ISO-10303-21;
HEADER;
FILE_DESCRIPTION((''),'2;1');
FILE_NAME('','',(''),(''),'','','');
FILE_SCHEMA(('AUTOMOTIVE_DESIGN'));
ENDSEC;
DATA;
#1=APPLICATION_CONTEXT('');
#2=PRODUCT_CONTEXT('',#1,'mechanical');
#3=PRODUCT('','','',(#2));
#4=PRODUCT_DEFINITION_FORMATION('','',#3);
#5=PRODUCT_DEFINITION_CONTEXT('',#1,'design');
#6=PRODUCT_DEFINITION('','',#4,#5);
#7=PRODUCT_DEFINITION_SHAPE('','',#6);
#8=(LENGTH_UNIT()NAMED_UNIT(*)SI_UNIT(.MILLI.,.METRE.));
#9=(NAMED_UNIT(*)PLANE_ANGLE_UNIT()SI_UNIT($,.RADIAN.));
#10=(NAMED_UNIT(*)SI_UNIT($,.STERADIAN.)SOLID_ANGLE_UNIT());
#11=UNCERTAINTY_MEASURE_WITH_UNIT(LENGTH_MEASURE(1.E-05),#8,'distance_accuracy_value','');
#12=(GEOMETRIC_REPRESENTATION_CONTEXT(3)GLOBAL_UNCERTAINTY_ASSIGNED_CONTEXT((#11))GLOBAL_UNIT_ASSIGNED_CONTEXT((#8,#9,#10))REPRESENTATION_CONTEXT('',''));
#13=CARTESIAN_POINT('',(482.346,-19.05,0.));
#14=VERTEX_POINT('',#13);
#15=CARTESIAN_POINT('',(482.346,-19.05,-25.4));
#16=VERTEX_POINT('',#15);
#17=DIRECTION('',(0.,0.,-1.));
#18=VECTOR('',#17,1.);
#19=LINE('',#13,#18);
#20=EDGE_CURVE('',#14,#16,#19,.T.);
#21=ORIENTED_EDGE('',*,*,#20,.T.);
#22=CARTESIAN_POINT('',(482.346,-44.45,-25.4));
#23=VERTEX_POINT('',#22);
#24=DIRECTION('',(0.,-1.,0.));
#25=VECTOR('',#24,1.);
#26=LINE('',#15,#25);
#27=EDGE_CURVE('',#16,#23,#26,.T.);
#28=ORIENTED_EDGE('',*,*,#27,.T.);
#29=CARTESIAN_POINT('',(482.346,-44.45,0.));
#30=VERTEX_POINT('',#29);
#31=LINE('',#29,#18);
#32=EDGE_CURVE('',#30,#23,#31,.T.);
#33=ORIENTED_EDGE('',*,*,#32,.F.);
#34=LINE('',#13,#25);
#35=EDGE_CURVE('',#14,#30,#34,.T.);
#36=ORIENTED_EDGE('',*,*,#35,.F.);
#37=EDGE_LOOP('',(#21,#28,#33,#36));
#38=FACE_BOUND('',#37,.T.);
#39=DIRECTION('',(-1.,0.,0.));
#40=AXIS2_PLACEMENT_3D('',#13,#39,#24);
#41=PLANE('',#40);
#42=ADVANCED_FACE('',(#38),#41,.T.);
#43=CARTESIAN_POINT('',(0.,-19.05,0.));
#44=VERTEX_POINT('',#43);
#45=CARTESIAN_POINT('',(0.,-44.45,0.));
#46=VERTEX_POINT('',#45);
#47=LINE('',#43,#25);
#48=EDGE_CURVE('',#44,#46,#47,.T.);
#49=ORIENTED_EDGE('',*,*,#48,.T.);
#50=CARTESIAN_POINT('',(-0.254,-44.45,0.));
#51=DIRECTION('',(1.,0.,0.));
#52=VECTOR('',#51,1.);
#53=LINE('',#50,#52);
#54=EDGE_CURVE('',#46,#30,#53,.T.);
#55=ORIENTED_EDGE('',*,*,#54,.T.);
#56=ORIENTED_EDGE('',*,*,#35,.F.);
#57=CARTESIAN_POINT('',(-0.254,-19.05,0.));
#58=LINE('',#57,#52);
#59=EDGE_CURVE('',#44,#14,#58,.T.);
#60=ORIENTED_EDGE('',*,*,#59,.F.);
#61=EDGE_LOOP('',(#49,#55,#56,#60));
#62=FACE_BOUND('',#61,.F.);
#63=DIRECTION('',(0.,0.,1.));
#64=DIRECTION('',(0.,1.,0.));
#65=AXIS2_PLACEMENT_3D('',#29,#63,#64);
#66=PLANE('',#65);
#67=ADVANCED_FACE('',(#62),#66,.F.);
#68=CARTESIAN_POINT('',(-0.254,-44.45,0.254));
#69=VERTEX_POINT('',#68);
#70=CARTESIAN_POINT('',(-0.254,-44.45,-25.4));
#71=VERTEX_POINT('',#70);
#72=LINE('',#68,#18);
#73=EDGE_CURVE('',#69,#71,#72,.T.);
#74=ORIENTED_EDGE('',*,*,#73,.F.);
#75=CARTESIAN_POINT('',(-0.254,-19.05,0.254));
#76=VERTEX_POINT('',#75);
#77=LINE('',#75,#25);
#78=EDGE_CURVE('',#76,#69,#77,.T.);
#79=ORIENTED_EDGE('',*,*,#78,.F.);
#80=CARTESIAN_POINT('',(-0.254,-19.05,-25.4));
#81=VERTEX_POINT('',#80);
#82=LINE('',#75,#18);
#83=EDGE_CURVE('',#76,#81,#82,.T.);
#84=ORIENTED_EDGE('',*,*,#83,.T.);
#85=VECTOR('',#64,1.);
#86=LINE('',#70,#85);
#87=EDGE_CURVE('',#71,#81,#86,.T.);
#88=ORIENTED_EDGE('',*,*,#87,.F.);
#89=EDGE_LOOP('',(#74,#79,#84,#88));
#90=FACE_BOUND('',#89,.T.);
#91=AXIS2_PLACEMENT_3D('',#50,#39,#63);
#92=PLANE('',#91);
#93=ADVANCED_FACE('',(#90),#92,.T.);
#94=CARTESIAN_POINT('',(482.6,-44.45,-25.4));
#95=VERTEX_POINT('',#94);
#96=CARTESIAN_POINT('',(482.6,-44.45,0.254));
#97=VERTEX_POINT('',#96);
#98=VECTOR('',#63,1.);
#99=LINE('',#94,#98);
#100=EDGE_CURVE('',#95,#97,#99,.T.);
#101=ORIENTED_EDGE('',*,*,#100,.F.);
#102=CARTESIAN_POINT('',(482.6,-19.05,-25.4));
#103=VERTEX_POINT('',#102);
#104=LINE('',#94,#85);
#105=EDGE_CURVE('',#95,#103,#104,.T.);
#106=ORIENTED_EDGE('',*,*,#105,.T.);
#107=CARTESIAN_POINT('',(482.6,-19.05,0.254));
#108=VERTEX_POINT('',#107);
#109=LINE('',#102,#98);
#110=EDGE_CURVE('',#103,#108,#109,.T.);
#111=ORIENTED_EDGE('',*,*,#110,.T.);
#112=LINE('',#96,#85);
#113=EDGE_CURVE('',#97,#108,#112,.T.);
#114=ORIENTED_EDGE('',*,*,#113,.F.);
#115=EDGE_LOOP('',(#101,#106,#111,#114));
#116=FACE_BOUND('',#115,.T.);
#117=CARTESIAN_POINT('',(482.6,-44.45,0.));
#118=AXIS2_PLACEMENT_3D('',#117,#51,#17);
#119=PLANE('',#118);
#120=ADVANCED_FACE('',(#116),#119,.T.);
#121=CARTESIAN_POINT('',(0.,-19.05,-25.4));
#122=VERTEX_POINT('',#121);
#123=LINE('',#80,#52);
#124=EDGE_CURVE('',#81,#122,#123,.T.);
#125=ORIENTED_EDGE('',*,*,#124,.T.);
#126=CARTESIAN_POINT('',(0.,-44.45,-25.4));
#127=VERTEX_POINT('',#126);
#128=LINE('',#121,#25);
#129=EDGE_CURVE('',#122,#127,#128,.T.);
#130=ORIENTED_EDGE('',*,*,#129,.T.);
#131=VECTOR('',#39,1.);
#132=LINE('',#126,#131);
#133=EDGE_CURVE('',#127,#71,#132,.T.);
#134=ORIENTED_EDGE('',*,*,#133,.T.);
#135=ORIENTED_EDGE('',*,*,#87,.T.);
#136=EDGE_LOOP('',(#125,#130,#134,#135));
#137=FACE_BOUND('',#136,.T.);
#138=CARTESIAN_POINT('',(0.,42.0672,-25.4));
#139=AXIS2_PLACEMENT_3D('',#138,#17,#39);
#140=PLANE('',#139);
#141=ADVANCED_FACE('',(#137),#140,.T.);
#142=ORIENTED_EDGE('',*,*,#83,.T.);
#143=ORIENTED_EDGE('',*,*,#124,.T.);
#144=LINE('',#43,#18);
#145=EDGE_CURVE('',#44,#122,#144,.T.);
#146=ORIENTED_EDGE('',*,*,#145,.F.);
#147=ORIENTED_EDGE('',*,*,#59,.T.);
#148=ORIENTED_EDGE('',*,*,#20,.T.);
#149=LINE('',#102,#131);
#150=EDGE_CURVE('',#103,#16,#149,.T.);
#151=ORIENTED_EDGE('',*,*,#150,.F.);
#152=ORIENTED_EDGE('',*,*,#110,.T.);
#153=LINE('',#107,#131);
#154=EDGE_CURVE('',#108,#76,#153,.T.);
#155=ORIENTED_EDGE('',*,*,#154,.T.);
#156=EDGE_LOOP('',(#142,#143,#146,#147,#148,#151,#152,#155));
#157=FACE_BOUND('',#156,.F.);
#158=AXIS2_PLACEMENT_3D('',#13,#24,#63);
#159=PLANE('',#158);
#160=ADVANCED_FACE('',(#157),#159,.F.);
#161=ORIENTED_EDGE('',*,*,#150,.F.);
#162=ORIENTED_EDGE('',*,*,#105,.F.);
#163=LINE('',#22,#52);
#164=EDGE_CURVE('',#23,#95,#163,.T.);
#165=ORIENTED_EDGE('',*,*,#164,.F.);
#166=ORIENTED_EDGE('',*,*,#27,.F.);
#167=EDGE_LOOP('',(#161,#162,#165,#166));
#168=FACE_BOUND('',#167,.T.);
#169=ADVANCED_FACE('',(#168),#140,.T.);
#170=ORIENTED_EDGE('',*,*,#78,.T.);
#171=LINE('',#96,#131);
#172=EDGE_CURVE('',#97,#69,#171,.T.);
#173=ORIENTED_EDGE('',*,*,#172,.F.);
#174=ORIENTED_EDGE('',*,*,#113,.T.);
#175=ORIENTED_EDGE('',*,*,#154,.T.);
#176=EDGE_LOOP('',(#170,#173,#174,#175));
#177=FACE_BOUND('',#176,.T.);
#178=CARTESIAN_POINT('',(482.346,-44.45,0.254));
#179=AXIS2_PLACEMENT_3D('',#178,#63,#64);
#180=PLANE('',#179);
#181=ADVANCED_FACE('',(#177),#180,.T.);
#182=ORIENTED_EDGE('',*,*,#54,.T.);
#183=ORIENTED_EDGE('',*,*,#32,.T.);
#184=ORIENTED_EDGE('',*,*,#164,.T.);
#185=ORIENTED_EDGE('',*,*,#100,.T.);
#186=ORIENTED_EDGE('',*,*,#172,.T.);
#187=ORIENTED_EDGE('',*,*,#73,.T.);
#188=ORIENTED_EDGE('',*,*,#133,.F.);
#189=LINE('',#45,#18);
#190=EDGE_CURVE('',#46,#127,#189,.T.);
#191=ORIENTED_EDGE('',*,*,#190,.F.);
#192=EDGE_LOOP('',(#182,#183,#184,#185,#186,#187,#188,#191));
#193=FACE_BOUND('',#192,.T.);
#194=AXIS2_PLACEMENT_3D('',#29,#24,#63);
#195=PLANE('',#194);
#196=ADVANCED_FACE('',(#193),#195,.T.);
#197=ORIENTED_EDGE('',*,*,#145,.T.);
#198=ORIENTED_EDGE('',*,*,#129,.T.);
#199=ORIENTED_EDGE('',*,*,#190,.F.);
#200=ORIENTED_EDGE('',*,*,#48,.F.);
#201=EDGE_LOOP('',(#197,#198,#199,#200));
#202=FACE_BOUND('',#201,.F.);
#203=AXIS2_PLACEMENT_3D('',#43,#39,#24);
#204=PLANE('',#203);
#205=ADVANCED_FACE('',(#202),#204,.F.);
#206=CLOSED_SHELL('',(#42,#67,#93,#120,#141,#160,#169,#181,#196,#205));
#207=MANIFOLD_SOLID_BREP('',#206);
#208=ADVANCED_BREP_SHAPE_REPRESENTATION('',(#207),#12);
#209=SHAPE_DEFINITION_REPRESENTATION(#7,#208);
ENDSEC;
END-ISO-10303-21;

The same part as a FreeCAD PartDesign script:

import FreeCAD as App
import Part
import Sketcher

V = App.Vector
Q = App.Units.Quantity

doc = App.newDocument("Part")
body = doc.addObject("PartDesign::Body", "Body")

# Sketch on XY plane
sketch1 = doc.addObject("Sketcher::SketchObject", "Sketch")
body.addObject(sketch1)
sketch1.AttachmentSupport = (doc.XY_Plane, [""])
sketch1.MapMode = "FlatFace"
sketch1.addGeometry([
    Part.LineSegment(V(482, -19, 0), V(0, -19, 0)),
    Part.LineSegment(V(0, -19, 0), V(0, -44, 0)),
    Part.LineSegment(V(0, -44, 0), V(482, -44, 0)),
    Part.LineSegment(V(482, -44, 0), V(482, -19, 0)),
], False)
sketch1.addConstraint([
    Sketcher.Constraint("Coincident", 0, 2, 1, 1),
    Sketcher.Constraint("Coincident", 1, 2, 2, 1),
    Sketcher.Constraint("Coincident", 2, 2, 3, 1),
    Sketcher.Constraint("Coincident", 3, 2, 0, 1),
    Sketcher.Constraint("Horizontal", 0),
    Sketcher.Constraint("Vertical", 1),
    Sketcher.Constraint("Horizontal", 2),
    Sketcher.Constraint("Vertical", 3),
    Sketcher.Constraint("PointOnObject", 0, 2, -2),
    Sketcher.Constraint("DistanceY", 1, 2, 1, 1, Q("1 in")),
    Sketcher.Constraint("DistanceX", 0, 2, 0, 1, Q("18.99 in")),
    Sketcher.Constraint("DistanceY", 0, 2, -1, 1, Q("0.75 in")),
])
pad1 = doc.addObject("PartDesign::Pad", "Pad")
body.addObject(pad1)
pad1.Profile = sketch1
pad1.Length = Q("0.01 in")

# Sketch on YZ plane
sketch2 = doc.addObject("Sketcher::SketchObject", "Sketch001")
body.addObject(sketch2)
sketch2.AttachmentSupport = (doc.YZ_Plane, [""])
sketch2.MapMode = "FlatFace"
sketch2.addGeometry([
    Part.LineSegment(V(-19.05, 0.25, 0), V(-19.05, 0, 0)),
    Part.LineSegment(V(-19.05, 0, 0), V(-44.45, 0, 0)),
    Part.LineSegment(V(-44.45, 0, 0), V(-44.45, 0.25, 0)),
    Part.LineSegment(V(-44.45, 0.25, 0), V(-19.05, 0.25, 0)),
], False)
sketch2.addConstraint([
    Sketcher.Constraint("Coincident", 0, 2, 1, 1),
    Sketcher.Constraint("Coincident", 1, 2, 2, 1),
    Sketcher.Constraint("Coincident", 2, 2, 3, 1),
    Sketcher.Constraint("Coincident", 3, 2, 0, 1),
    Sketcher.Constraint("Vertical", 0),
    Sketcher.Constraint("Horizontal", 1),
    Sketcher.Constraint("Vertical", 2),
    Sketcher.Constraint("Horizontal", 3),
    Sketcher.Constraint("PointOnObject", 0, 2, -1),
    Sketcher.Constraint("DistanceX", 1, 2, 1, 1, Q("1 in")),
    Sketcher.Constraint("DistanceY", 0, 2, 0, 1, Q("0.01 in")),
    Sketcher.Constraint("DistanceX", 0, 2, -1, 1, Q("0.75 in")),
])
pad2 = doc.addObject("PartDesign::Pad", "Pad001")
body.addObject(pad2)
pad2.Profile = sketch2
pad2.Length = Q("0.01 in")
pad2.Reversed = True

# Sketch on YZ plane
sketch3 = doc.addObject("Sketcher::SketchObject", "Sketch002")
body.addObject(sketch3)
sketch3.AttachmentSupport = (doc.YZ_Plane, [""])
sketch3.MapMode = "FlatFace"
sketch3.AttachmentOffset = App.Placement(V(0, 0, 18.99 * 25.4), App.Rotation())
sketch3.addGeometry([
    Part.LineSegment(V(-44.45, 0.25, 0), V(-44.45, 0, 0)),
    Part.LineSegment(V(-44.45, 0, 0), V(-19.05, 0, 0)),
    Part.LineSegment(V(-19.05, 0, 0), V(-19.05, 0.25, 0)),
    Part.LineSegment(V(-19.05, 0.25, 0), V(-44.45, 0.25, 0)),
], False)
sketch3.addConstraint([
    Sketcher.Constraint("Coincident", 0, 2, 1, 1),
    Sketcher.Constraint("Coincident", 1, 2, 2, 1),
    Sketcher.Constraint("Coincident", 2, 2, 3, 1),
    Sketcher.Constraint("Coincident", 3, 2, 0, 1),
    Sketcher.Constraint("Vertical", 0),
    Sketcher.Constraint("Horizontal", 1),
    Sketcher.Constraint("Vertical", 2),
    Sketcher.Constraint("Horizontal", 3),
    Sketcher.Constraint("PointOnObject", 0, 2, -1),
    Sketcher.Constraint("DistanceX", 1, 1, 1, 2, Q("1 in")),
    Sketcher.Constraint("DistanceY", 0, 2, 0, 1, Q("0.01 in")),
    Sketcher.Constraint("DistanceX", 0, 2, -1, 1, Q("1.75 in")),
])
pad3 = doc.addObject("PartDesign::Pad", "Pad002")
body.addObject(pad3)
pad3.Profile = sketch3
pad3.Length = Q("0.01 in")

# Sketch on XY plane
sketch4 = doc.addObject("Sketcher::SketchObject", "Sketch003")
body.addObject(sketch4)
sketch4.AttachmentSupport = (doc.XY_Plane, [""])
sketch4.MapMode = "FlatFace"
sketch4.addGeometry([
    Part.LineSegment(V(482.35, -19.05, 0), V(482.6, -19.05, 0)),  # 0
    Part.LineSegment(V(482.6, -19.05, 0), V(482.6, -44.45, 0)),  # 1
    Part.LineSegment(V(482.6, -44.45, 0), V(482.35, -44.45, 0)),  # 2
    Part.LineSegment(V(482.35, -44.45, 0), V(482.35, -19.05, 0)),  # 3
    Part.LineSegment(V(-0.25, -44.45, 0), V(-0.25, -19.05, 0)),  # 4
    Part.LineSegment(V(-0.25, -19.05, 0), V(0, -19.05, 0)),  # 5
    Part.LineSegment(V(0, -19.05, 0), V(0, -44.45, 0)),  # 6
    Part.LineSegment(V(0, -44.45, 0), V(-0.25, -44.45, 0)),  # 7
], False)
sketch4.addConstraint([
    Sketcher.Constraint("Coincident", 0, 2, 1, 1),
    Sketcher.Constraint("Coincident", 1, 2, 2, 1),
    Sketcher.Constraint("Coincident", 2, 2, 3, 1),
    Sketcher.Constraint("Coincident", 3, 2, 0, 1),
    Sketcher.Constraint("Coincident", 4, 2, 5, 1),
    Sketcher.Constraint("Coincident", 5, 2, 6, 1),
    Sketcher.Constraint("Coincident", 6, 2, 7, 1),
    Sketcher.Constraint("Coincident", 7, 2, 4, 1),
    Sketcher.Constraint("Horizontal", 0),
    Sketcher.Constraint("Vertical", 1),
    Sketcher.Constraint("Horizontal", 2),
    Sketcher.Constraint("Vertical", 3),
    Sketcher.Constraint("Vertical", 4),
    Sketcher.Constraint("Horizontal", 5),
    Sketcher.Constraint("Vertical", 6),
    Sketcher.Constraint("Horizontal", 7),
    Sketcher.Constraint("PointOnObject", 5, 2, -2),
    Sketcher.Constraint("Horizontal", 3, 2, 4, 2),
    Sketcher.Constraint("Horizontal", 2, 2, 6, 2),
    Sketcher.Constraint("Equal", 2, 5),
    Sketcher.Constraint("DistanceY", 1, 2, 1, 1, Q("1 in")),
    Sketcher.Constraint("DistanceX", 0, 1, 0, 2, Q("0.01 in")),
    Sketcher.Constraint("DistanceX", -1, 1, 0, 2, Q("19 in")),
    Sketcher.Constraint("DistanceY", 0, 2, -1, 1, Q("0.75 in")),
])
pad4 = doc.addObject("PartDesign::Pad", "Pad003")
body.addObject(pad4)
pad4.Profile = sketch4
pad4.Length = Q("1 in")
pad4.Reversed = True

doc.recompute()
